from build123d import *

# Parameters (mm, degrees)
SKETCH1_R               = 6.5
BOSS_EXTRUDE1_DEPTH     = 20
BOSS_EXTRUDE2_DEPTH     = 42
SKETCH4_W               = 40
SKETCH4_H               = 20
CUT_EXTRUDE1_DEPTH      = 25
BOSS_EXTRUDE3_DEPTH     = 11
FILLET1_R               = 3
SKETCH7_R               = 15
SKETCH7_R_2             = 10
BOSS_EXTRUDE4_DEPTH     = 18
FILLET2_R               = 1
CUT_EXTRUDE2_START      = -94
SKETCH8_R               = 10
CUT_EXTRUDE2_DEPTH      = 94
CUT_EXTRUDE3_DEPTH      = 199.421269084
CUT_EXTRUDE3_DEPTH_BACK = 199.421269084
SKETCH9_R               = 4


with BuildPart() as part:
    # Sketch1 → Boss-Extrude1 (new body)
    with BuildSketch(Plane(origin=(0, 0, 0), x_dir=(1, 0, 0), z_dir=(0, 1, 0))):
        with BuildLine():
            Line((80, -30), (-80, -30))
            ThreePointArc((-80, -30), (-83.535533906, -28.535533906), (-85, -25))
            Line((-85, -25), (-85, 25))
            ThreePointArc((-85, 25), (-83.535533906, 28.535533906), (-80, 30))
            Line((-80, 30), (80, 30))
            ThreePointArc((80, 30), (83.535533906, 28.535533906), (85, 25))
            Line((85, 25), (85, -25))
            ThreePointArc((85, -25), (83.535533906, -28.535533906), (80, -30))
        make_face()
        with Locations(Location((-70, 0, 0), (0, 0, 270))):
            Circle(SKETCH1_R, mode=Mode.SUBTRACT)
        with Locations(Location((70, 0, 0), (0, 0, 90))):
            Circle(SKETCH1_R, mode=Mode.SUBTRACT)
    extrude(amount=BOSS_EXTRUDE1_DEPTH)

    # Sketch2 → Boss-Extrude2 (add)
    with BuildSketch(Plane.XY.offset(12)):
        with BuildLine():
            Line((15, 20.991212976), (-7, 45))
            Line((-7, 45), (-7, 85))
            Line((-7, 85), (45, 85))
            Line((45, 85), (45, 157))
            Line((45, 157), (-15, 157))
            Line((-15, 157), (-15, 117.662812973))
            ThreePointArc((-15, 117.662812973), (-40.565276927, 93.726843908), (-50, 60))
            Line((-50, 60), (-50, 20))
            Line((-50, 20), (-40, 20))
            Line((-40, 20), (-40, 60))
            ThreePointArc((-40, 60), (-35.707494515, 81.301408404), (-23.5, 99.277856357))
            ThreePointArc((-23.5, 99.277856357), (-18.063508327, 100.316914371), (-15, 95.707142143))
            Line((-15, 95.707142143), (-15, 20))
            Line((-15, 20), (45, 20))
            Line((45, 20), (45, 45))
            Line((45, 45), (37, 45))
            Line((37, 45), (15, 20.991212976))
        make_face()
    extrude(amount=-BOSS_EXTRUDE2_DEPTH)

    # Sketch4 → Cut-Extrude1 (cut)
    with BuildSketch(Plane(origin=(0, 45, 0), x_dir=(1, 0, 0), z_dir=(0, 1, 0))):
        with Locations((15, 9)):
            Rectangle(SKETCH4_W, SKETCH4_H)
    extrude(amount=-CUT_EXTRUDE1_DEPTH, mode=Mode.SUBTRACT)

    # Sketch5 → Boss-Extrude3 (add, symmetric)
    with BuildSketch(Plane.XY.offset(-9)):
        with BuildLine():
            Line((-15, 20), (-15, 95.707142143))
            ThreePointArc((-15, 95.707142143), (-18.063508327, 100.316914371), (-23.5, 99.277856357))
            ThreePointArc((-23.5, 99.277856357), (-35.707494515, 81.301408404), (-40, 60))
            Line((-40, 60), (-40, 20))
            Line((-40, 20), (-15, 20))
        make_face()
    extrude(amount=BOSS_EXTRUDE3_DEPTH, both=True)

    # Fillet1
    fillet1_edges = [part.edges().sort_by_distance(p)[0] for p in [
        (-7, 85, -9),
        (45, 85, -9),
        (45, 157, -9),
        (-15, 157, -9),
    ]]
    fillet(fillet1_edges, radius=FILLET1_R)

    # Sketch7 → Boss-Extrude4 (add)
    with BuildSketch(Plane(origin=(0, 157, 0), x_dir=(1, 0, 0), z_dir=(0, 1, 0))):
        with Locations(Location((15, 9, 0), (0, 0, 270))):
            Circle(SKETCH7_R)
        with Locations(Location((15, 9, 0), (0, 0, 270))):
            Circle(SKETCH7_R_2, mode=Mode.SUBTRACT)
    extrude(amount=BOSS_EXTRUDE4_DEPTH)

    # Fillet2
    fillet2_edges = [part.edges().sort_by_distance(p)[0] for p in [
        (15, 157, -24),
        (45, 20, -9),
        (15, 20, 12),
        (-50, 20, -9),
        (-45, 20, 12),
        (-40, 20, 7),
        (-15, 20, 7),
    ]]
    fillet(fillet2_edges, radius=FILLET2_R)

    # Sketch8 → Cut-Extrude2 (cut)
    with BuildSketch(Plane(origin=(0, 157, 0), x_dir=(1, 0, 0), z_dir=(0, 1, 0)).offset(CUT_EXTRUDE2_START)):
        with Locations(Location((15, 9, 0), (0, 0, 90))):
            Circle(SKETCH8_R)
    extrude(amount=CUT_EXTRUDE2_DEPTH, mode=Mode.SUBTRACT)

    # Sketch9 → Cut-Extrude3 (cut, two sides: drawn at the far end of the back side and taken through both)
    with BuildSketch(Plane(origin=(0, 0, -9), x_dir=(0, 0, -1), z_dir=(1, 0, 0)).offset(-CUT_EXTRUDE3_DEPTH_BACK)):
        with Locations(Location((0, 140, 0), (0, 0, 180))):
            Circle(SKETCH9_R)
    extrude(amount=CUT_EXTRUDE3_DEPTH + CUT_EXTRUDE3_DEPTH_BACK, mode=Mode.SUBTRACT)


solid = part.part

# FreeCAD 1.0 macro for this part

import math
import FreeCAD as App
import Part
import Sketcher
Q = App.Units.Quantity


def edges_at(feature, points):
    """Names of the edges that pass closest to the given points."""
    edges = feature.Shape.Edges
    near = lambda p: min(range(len(edges)), key=lambda i: edges[i].distToShape(Part.Vertex(*p))[0])
    return sorted({f"Edge{near(p) + 1}" for p in points})


def add_polygon(sketch, points):
    """Adds a closed chain of lines whose ends are joined by coincident constraints."""
    first, n = sketch.GeometryCount, len(points)
    for a, b in zip(points, points[1:] + points[:1]):
        sketch.addGeometry(Part.LineSegment(App.Vector(*a, 0), App.Vector(*b, 0)), False)
    for i in range(n):
        sketch.addConstraint(Sketcher.Constraint("Coincident", first + i, 2, first + (i + 1) % n, 1))

doc = App.newDocument("Part")
params = doc.addObject("Spreadsheet::Sheet", "Params")
for row, (alias, value) in enumerate([
    ("sketch1_diameter", "13 mm"),
    ("sketch1_radius", "5 mm"),
    ("sketch1_width", "160 mm"),
    ("sketch1_height", "50 mm"),
    ("pad1_length", "20 mm"),
    ("sketch2_radius", "65 mm"),
    ("sketch2_radius2", "55 mm"),
    ("sketch2_radius3", "5 mm"),
    ("sketch2_width", "52 mm"),
    ("sketch2_width2", "60 mm"),
    ("pad2_length", "42 mm"),
    ("sketch3_width", "40 mm"),
    ("sketch3_height", "20 mm"),
    ("pocket1_length", "25 mm"),
    ("sketch4_radius", "5 mm"),
    ("sketch4_radius2", "55 mm"),
    ("sketch4_width", "25 mm"),
    ("sketch4_height", "40 mm"),
    ("pad3_length", "22 mm"),
    ("fillet_radius", "3 mm"),
    ("sketch5_diameter", "30 mm"),
    ("sketch5_diameter2", "20 mm"),
    ("pad4_length", "18 mm"),
    ("fillet2_radius", "1 mm"),
    ("sketch6_diameter", "20 mm"),
    ("pocket2_length", "94 mm"),
    ("sketch7_diameter", "8 mm"),
], start=1):
    params.set(f"A{row}", alias)
    params.set(f"B{row}", "=" + value)
    params.setAlias(f"B{row}", alias)

body = doc.addObject("PartDesign::Body", "Body")

# Sketch on XZ plane
sketch1 = doc.addObject("Sketcher::SketchObject", "Sketch")
body.addObject(sketch1)
sketch1.AttachmentSupport = (doc.XZ_Plane, [""])
sketch1.MapMode = "FlatFace"
sketch1.addGeometry([
    Part.LineSegment(App.Vector(-80, 30, 0), App.Vector(80, 30, 0)),  # 0
    Part.ArcOfCircle(Part.Circle(App.Vector(80, 25, 0), App.Vector(0, 0, 1), 5), math.radians(0), math.radians(90)),  # 1
    Part.LineSegment(App.Vector(85, 25, 0), App.Vector(85, -25, 0)),  # 2
    Part.ArcOfCircle(Part.Circle(App.Vector(80, -25, 0), App.Vector(0, 0, 1), 5), math.radians(-90), math.radians(0)),  # 3
    Part.LineSegment(App.Vector(80, -30, 0), App.Vector(-80, -30, 0)),  # 4
    Part.ArcOfCircle(Part.Circle(App.Vector(-80, -25, 0), App.Vector(0, 0, 1), 5), math.radians(180), math.radians(270)),  # 5
    Part.LineSegment(App.Vector(-85, -25, 0), App.Vector(-85, 25, 0)),  # 6
    Part.ArcOfCircle(Part.Circle(App.Vector(-80, 25, 0), App.Vector(0, 0, 1), 5), math.radians(90), math.radians(180)),  # 7
    Part.Circle(App.Vector(70, 0, 0), App.Vector(0, 0, 1), 6),  # 8
    Part.Circle(App.Vector(-70, 0, 0), App.Vector(0, 0, 1), 6),  # 9
], False)
sketch1.addConstraint([
    Sketcher.Constraint("Tangent", 0, 2, 1, 2),
    Sketcher.Constraint("Tangent", 1, 1, 2, 1),
    Sketcher.Constraint("Tangent", 2, 2, 3, 2),
    Sketcher.Constraint("Tangent", 3, 1, 4, 1),
    Sketcher.Constraint("Tangent", 4, 2, 5, 2),
    Sketcher.Constraint("Tangent", 5, 1, 6, 1),
    Sketcher.Constraint("Tangent", 6, 2, 7, 2),
    Sketcher.Constraint("Tangent", 7, 1, 0, 1),
    Sketcher.Constraint("Horizontal", 0),
    Sketcher.Constraint("Vertical", 2),
    Sketcher.Constraint("Horizontal", 4),
    Sketcher.Constraint("Vertical", 6),
    Sketcher.Constraint("Equal", 1, 3),
    Sketcher.Constraint("Equal", 3, 5),
    Sketcher.Constraint("Equal", 5, 7),
    Sketcher.Constraint("Equal", 8, 9),
    Sketcher.Constraint("Symmetric", 1, 3, 5, 3, -1, 1),
    Sketcher.Constraint("Symmetric", 8, 3, 9, 3, -1, 1),
    Sketcher.Constraint("PointOnObject", 8, 3, -1),
    Sketcher.Constraint("Diameter", 8, 13.0),
    Sketcher.Constraint("Radius", 1, 5.0),
    Sketcher.Constraint("DistanceX", 0, 1, 0, 2, 160.0),
    Sketcher.Constraint("DistanceY", 2, 2, 2, 1, 50.0),
    Sketcher.Constraint("DistanceX", -1, 1, 8, 3, 70.0),
])
sketch1.setExpression("Constraints[19]", "Params.sketch1_diameter")
sketch1.setExpression("Constraints[20]", "Params.sketch1_radius")
sketch1.setExpression("Constraints[21]", "Params.sketch1_width")
sketch1.setExpression("Constraints[22]", "Params.sketch1_height")
pad1 = doc.addObject("PartDesign::Pad", "Pad")
body.addObject(pad1)
pad1.Profile = sketch1
pad1.setExpression("Length", "Params.pad1_length")
pad1.Reversed = True

# Sketch on XY plane
sketch2 = doc.addObject("Sketcher::SketchObject", "Sketch001")
body.addObject(sketch2)
sketch2.AttachmentSupport = (doc.XY_Plane, [""])
sketch2.MapMode = "FlatFace"
sketch2.AttachmentOffset = App.Placement(App.Vector(0, 0, 12), App.Rotation())
sketch2.addGeometry([
    Part.LineSegment(App.Vector(15, 21, 0), App.Vector(-7, 45, 0)),  # 0
    Part.LineSegment(App.Vector(-7, 45, 0), App.Vector(-7, 85, 0)),  # 1
    Part.LineSegment(App.Vector(-7, 85, 0), App.Vector(45, 85, 0)),  # 2
    Part.LineSegment(App.Vector(45, 85, 0), App.Vector(45, 157, 0)),  # 3
    Part.LineSegment(App.Vector(45, 157, 0), App.Vector(-15, 157, 0)),  # 4
    Part.LineSegment(App.Vector(-15, 157, 0), App.Vector(-15, 118, 0)),  # 5
    Part.ArcOfCircle(Part.Circle(App.Vector(15, 60, 0), App.Vector(0, 0, 1), 65), math.radians(117), math.radians(180)),  # 6
    Part.LineSegment(App.Vector(-50, 60, 0), App.Vector(-50, 20, 0)),  # 7
    Part.LineSegment(App.Vector(-50, 20, 0), App.Vector(-40, 20, 0)),  # 8
    Part.LineSegment(App.Vector(-40, 20, 0), App.Vector(-40, 60, 0)),  # 9
    Part.ArcOfCircle(Part.Circle(App.Vector(15, 60, 0), App.Vector(0, 0, 1), 55), math.radians(134), math.radians(180)),  # 10
    Part.ArcOfCircle(Part.Circle(App.Vector(-20, 96, 0), App.Vector(0, 0, 1), 5), math.radians(0), math.radians(134)),  # 11
    Part.LineSegment(App.Vector(-15, 96, 0), App.Vector(-15, 20, 0)),  # 12
    Part.LineSegment(App.Vector(-15, 20, 0), App.Vector(45, 20, 0)),  # 13
    Part.LineSegment(App.Vector(45, 20, 0), App.Vector(45, 45, 0)),  # 14
    Part.LineSegment(App.Vector(45, 45, 0), App.Vector(37, 45, 0)),  # 15
    Part.LineSegment(App.Vector(37, 45, 0), App.Vector(15, 21, 0)),  # 16
], False)
sketch2.addConstraint([
    Sketcher.Constraint("Coincident", 0, 2, 1, 1),
    Sketcher.Constraint("Coincident", 1, 2, 2, 1),
    Sketcher.Constraint("Coincident", 2, 2, 3, 1),
    Sketcher.Constraint("Coincident", 3, 2, 4, 1),
    Sketcher.Constraint("Coincident", 4, 2, 5, 1),
    Sketcher.Constraint("Coincident", 5, 2, 6, 1),
    Sketcher.Constraint("Tangent", 6, 2, 7, 1),
    Sketcher.Constraint("Coincident", 7, 2, 8, 1),
    Sketcher.Constraint("Coincident", 8, 2, 9, 1),
    Sketcher.Constraint("Tangent", 9, 2, 10, 2),
    Sketcher.Constraint("Tangent", 10, 1, 11, 2),
    Sketcher.Constraint("Tangent", 11, 1, 12, 1),
    Sketcher.Constraint("Coincident", 12, 2, 13, 1),
    Sketcher.Constraint("Coincident", 13, 2, 14, 1),
    Sketcher.Constraint("Coincident", 14, 2, 15, 1),
    Sketcher.Constraint("Coincident", 15, 2, 16, 1),
    Sketcher.Constraint("Coincident", 16, 2, 0, 1),
    Sketcher.Constraint("Vertical", 1),
    Sketcher.Constraint("Horizontal", 2),
    Sketcher.Constraint("Vertical", 3),
    Sketcher.Constraint("Horizontal", 4),
    Sketcher.Constraint("Vertical", 5),
    Sketcher.Constraint("Vertical", 7),
    Sketcher.Constraint("Horizontal", 8),
    Sketcher.Constraint("Vertical", 9),
    Sketcher.Constraint("Vertical", 12),
    Sketcher.Constraint("Horizontal", 13),
    Sketcher.Constraint("Vertical", 14),
    Sketcher.Constraint("Horizontal", 15),
    Sketcher.Constraint("Coincident", 10, 3, 6, 3),
    Sketcher.Constraint("Horizontal", 8, 2, 12, 2),
    Sketcher.Constraint("Horizontal", 0, 2, 14, 2),
    Sketcher.Constraint("Vertical", 5, 2, 11, 1),
    Sketcher.Constraint("Vertical", 3, 2, 13, 2),
    Sketcher.Constraint("Vertical", 10, 3, 16, 2),
    Sketcher.Constraint("Equal", 1, 7),
    Sketcher.Constraint("Equal", 0, 16),
    Sketcher.Constraint("Radius", 6, 65.0),
    Sketcher.Constraint("Radius", 10, 55.0),
    Sketcher.Constraint("Radius", 11, 5.0),
    Sketcher.Constraint("DistanceX", 2, 1, 2, 2, 52.0),
    Sketcher.Constraint("DistanceX", 4, 2, 4, 1, 60.0),
    Sketcher.Constraint("DistanceX", 15, 2, 15, 1, 8.0),
    Sketcher.Constraint("DistanceY", 1, 1, 1, 2, 40.0),
    Sketcher.Constraint("DistanceY", 3, 1, 3, 2, 72.0),
    Sketcher.Constraint("DistanceY", 14, 1, 14, 2, 25.0),
    Sketcher.Constraint("DistanceX", -1, 1, 6, 3, 15.0),
    Sketcher.Constraint("DistanceY", -1, 1, 6, 3, 60.0),
    Sketcher.Constraint("Angle", 0, Q("132.5 deg")),
])
sketch2.setExpression("Constraints[37]", "Params.sketch2_radius")
sketch2.setExpression("Constraints[38]", "Params.sketch2_radius2")
sketch2.setExpression("Constraints[39]", "Params.sketch2_radius3")
sketch2.setExpression("Constraints[40]", "Params.sketch2_width")
sketch2.setExpression("Constraints[41]", "Params.sketch2_width2")
pad2 = doc.addObject("PartDesign::Pad", "Pad001")
body.addObject(pad2)
pad2.Profile = sketch2
pad2.setExpression("Length", "Params.pad2_length")
pad2.Reversed = True

# Sketch on XZ plane
sketch3 = doc.addObject("Sketcher::SketchObject", "Sketch002")
body.addObject(sketch3)
sketch3.AttachmentSupport = (doc.XZ_Plane, [""])
sketch3.MapMode = "FlatFace"
sketch3.AttachmentOffset = App.Placement(App.Vector(0, 0, -45), App.Rotation())
add_polygon(sketch3, [(-5, -19), (-5, 1), (35, 1), (35, -19)])  # lines 0-3
sketch3.addConstraint([
    Sketcher.Constraint("Vertical", 0),
    Sketcher.Constraint("Horizontal", 1),
    Sketcher.Constraint("Vertical", 2),
    Sketcher.Constraint("Horizontal", 3),
    Sketcher.Constraint("DistanceX", 1, 1, 1, 2, 40.0),
    Sketcher.Constraint("DistanceY", 0, 1, 0, 2, 20.0),
    Sketcher.Constraint("DistanceX", 0, 2, -1, 1, 5.0),
    Sketcher.Constraint("DistanceY", -1, 1, 0, 2, 1.0),
])
sketch3.setExpression("Constraints[8]", "Params.sketch3_width")
sketch3.setExpression("Constraints[9]", "Params.sketch3_height")
pocket1 = doc.addObject("PartDesign::Pocket", "Pocket")
body.addObject(pocket1)
pocket1.Profile = sketch3
pocket1.setExpression("Length", "Params.pocket1_length")
pocket1.Reversed = True

# Sketch on XY plane
sketch4 = doc.addObject("Sketcher::SketchObject", "Sketch003")
body.addObject(sketch4)
sketch4.AttachmentSupport = (doc.XY_Plane, [""])
sketch4.MapMode = "FlatFace"
sketch4.AttachmentOffset = App.Placement(App.Vector(0, 0, -9), App.Rotation())
sketch4.addGeometry([
    Part.LineSegment(App.Vector(-15, 20, 0), App.Vector(-15, 96, 0)),  # 0
    Part.ArcOfCircle(Part.Circle(App.Vector(-20, 96, 0), App.Vector(0, 0, 1), 5), math.radians(0), math.radians(134)),  # 1
    Part.ArcOfCircle(Part.Circle(App.Vector(15, 60, 0), App.Vector(0, 0, 1), 55), math.radians(134), math.radians(180)),  # 2
    Part.LineSegment(App.Vector(-40, 60, 0), App.Vector(-40, 20, 0)),  # 3
    Part.LineSegment(App.Vector(-40, 20, 0), App.Vector(-15, 20, 0)),  # 4
], False)
sketch4.addConstraint([
    Sketcher.Constraint("Tangent", 0, 2, 1, 1),
    Sketcher.Constraint("Tangent", 1, 2, 2, 1),
    Sketcher.Constraint("Tangent", 2, 2, 3, 1),
    Sketcher.Constraint("Coincident", 3, 2, 4, 1),
    Sketcher.Constraint("Coincident", 4, 2, 0, 1),
    Sketcher.Constraint("Vertical", 0),
    Sketcher.Constraint("Vertical", 3),
    Sketcher.Constraint("Horizontal", 4),
    Sketcher.Constraint("Radius", 1, 5.0),
    Sketcher.Constraint("Radius", 2, 55.0),
    Sketcher.Constraint("DistanceX", 4, 1, 4, 2, 25.0),
    Sketcher.Constraint("DistanceY", 3, 2, 3, 1, 40.0),
    Sketcher.Constraint("DistanceX", 1, 3, -1, 1, 20.0),
    Sketcher.Constraint("DistanceY", -1, 1, 2, 3, 60.0),
])
sketch4.setExpression("Constraints[8]", "Params.sketch4_radius")
sketch4.setExpression("Constraints[9]", "Params.sketch4_radius2")
sketch4.setExpression("Constraints[10]", "Params.sketch4_width")
sketch4.setExpression("Constraints[11]", "Params.sketch4_height")
pad3 = doc.addObject("PartDesign::Pad", "Pad002")
body.addObject(pad3)
pad3.Profile = sketch4
pad3.setExpression("Length", "Params.pad3_length")
pad3.Midplane = True
doc.recompute()

fillet = doc.addObject("PartDesign::Fillet", "Fillet")
body.addObject(fillet)
fillet.Base = (pad3, edges_at(pad3, [
    (-7, 85, -9),
    (45, 85, -9),
    (45, 157, -9),
    (-15, 157, -9),
]))
fillet.setExpression("Radius", "Params.fillet_radius")

# Sketch on XZ plane
sketch5 = doc.addObject("Sketcher::SketchObject", "Sketch004")
body.addObject(sketch5)
sketch5.AttachmentSupport = (doc.XZ_Plane, [""])
sketch5.MapMode = "FlatFace"
sketch5.AttachmentOffset = App.Placement(App.Vector(0, 0, -157), App.Rotation())
sketch5.addGeometry([
    Part.Circle(App.Vector(15, -9, 0), App.Vector(0, 0, 1), 15),
    Part.Circle(App.Vector(15, -9, 0), App.Vector(0, 0, 1), 10),
], False)
sketch5.addConstraint([
    Sketcher.Constraint("Coincident", 1, 3, 0, 3),
    Sketcher.Constraint("Diameter", 0, 30.0),
    Sketcher.Constraint("Diameter", 1, 20.0),
    Sketcher.Constraint("DistanceX", -1, 1, 0, 3, 15.0),
    Sketcher.Constraint("DistanceY", 0, 3, -1, 1, 9.0),
])
sketch5.setExpression("Constraints[1]", "Params.sketch5_diameter")
sketch5.setExpression("Constraints[2]", "Params.sketch5_diameter2")
pad4 = doc.addObject("PartDesign::Pad", "Pad003")
body.addObject(pad4)
pad4.Profile = sketch5
pad4.setExpression("Length", "Params.pad4_length")
pad4.Reversed = True
doc.recompute()

fillet2 = doc.addObject("PartDesign::Fillet", "Fillet001")
body.addObject(fillet2)
fillet2.Base = (pad4, edges_at(pad4, [
    (15, 157, -24),
    (45, 20, -9),
    (15, 20, 12),
    (-50, 20, -9),
    (-45, 20, 12),
    (-40, 20, 7),
    (-15, 20, 7),
]))
fillet2.setExpression("Radius", "Params.fillet2_radius")

# Sketch on XZ plane
sketch6 = doc.addObject("Sketcher::SketchObject", "Sketch005")
body.addObject(sketch6)
sketch6.AttachmentSupport = (doc.XZ_Plane, [""])
sketch6.MapMode = "FlatFace"
sketch6.AttachmentOffset = App.Placement(App.Vector(0, 0, -63), App.Rotation())
sketch6.addGeometry(Part.Circle(App.Vector(15, -9, 0), App.Vector(0, 0, 1), 10), False)
sketch6.addConstraint([
    Sketcher.Constraint("Diameter", 0, 20.0),
    Sketcher.Constraint("DistanceX", -1, 1, 0, 3, 15.0),
    Sketcher.Constraint("DistanceY", 0, 3, -1, 1, 9.0),
])
sketch6.setExpression("Constraints[0]", "Params.sketch6_diameter")
pocket2 = doc.addObject("PartDesign::Pocket", "Pocket001")
body.addObject(pocket2)
pocket2.Profile = sketch6
pocket2.setExpression("Length", "Params.pocket2_length")

# Sketch on YZ plane
sketch7 = doc.addObject("Sketcher::SketchObject", "Sketch006")
body.addObject(sketch7)
sketch7.AttachmentSupport = (doc.YZ_Plane, [""])
sketch7.MapMode = "FlatFace"
sketch7.addGeometry(Part.Circle(App.Vector(140, -9, 0), App.Vector(0, 0, 1), 4), False)
sketch7.addConstraint([
    Sketcher.Constraint("Diameter", 0, 8.0),
    Sketcher.Constraint("DistanceX", -1, 1, 0, 3, 140.0),
    Sketcher.Constraint("DistanceY", 0, 3, -1, 1, 9.0),
])
sketch7.setExpression("Constraints[0]", "Params.sketch7_diameter")
pocket3 = doc.addObject("PartDesign::Pocket", "Pocket002")
body.addObject(pocket3)
pocket3.Profile = sketch7
pocket3.Type = "ThroughAll"
pocket3.Midplane = True

doc.recompute()
